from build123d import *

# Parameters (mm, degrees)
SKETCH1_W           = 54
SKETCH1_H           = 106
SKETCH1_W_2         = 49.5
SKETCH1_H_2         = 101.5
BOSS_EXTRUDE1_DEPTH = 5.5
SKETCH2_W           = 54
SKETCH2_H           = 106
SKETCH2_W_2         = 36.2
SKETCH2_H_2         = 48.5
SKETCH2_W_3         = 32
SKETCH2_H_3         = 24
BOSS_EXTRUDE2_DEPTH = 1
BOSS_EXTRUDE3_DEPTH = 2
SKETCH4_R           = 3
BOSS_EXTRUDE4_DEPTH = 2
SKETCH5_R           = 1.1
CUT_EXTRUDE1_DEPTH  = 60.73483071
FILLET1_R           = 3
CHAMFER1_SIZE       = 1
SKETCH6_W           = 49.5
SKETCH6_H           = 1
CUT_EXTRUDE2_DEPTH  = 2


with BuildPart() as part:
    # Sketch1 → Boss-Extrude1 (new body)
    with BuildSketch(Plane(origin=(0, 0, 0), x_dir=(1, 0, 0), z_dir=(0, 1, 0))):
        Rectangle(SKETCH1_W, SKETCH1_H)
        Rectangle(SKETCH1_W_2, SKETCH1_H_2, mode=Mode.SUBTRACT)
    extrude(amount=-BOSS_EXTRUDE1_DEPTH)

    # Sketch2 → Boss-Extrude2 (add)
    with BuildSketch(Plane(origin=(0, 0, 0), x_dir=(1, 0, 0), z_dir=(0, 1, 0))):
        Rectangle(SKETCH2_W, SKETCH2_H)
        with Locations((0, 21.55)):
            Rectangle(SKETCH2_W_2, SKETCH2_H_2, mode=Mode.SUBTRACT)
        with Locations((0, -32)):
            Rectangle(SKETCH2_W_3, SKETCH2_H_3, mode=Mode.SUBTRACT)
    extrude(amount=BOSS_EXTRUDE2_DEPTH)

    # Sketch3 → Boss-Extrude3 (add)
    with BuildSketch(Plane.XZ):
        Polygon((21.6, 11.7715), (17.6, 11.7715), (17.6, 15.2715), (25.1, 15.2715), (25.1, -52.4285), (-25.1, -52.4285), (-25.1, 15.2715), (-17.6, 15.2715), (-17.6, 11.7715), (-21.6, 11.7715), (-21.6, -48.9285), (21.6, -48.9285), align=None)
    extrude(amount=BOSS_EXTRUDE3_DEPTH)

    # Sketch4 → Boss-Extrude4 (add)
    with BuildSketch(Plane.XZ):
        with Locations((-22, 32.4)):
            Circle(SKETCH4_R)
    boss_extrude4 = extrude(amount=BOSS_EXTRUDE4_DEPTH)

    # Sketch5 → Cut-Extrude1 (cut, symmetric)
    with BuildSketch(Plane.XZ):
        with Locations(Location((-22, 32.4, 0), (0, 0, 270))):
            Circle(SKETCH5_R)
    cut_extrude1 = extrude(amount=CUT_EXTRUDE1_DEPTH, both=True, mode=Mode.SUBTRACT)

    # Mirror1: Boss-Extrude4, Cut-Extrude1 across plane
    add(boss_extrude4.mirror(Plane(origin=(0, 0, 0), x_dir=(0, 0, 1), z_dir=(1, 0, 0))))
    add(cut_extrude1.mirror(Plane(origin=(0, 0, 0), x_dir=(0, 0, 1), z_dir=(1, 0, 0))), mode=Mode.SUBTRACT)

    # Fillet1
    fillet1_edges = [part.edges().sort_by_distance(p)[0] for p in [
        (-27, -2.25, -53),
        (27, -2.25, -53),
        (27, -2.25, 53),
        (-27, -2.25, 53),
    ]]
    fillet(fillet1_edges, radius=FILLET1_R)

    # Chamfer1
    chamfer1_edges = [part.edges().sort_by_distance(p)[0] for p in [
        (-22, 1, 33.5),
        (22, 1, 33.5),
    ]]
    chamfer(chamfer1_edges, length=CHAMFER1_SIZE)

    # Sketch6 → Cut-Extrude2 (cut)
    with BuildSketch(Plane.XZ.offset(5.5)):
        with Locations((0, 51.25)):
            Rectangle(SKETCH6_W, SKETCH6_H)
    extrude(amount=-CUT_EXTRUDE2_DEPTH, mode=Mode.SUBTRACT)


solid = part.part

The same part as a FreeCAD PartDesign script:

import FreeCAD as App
import Part
import Sketcher
from FreeCAD import Vector
Q = App.Units.Quantity


def edges_at(feature, points):
    """Names of the edges that pass closest to the given points."""
    edges = feature.Shape.Edges
    near = lambda p: min(range(len(edges)), key=lambda i: edges[i].distToShape(Part.Vertex(*p))[0])
    return sorted({f"Edge{near(p) + 1}" for p in points})

doc = App.newDocument("Part")
params = doc.addObject("Spreadsheet::Sheet", "Params")
for row, (alias, value) in enumerate([
    ("sketch1_width", "54 mm"),
    ("sketch1_height", "106 mm"),
    ("sketch1_width2", "49.5 mm"),
    ("sketch1_height2", "101.5 mm"),
    ("pad1_length", "5.5 mm"),
    ("sketch2_width", "54 mm"),
    ("sketch2_width2", "32 mm"),
    ("sketch2_height", "106 mm"),
    ("sketch2_height2", "24 mm"),
    ("sketch2_width3", "36.2 mm"),
    ("pad2_length", "1 mm"),
    ("sketch3_width", "4 mm"),
    ("sketch3_width2", "43.2 mm"),
    ("sketch3_width3", "7.5 mm"),
    ("sketch3_height", "60.7 mm"),
    ("sketch3_height2", "3.5 mm"),
    ("pad3_length", "2 mm"),
    ("sketch4_diameter", "6 mm"),
    ("pad4_length", "2 mm"),
    ("sketch5_diameter", "2.2 mm"),
    ("pocket1_length", "121.469661 mm"),
    ("fillet_radius", "3 mm"),
    ("chamfer_size", "1 mm"),
    ("sketch6_height", "1 mm"),
    ("sketch6_width", "49.5 mm"),
    ("pocket2_length", "2 mm"),
], start=1):
    params.set(f"A{row}", alias)
    params.set(f"B{row}", "=" + value)
    params.setAlias(f"B{row}", alias)

body = doc.addObject("PartDesign::Body", "Body")

sketch1 = body.newObject("Sketcher::SketchObject", "Sketch")
sketch1.AttachmentSupport = (doc.getObject("XZ_Plane"), [""])
sketch1.MapMode = "FlatFace"
sketch1.addGeometry(Part.LineSegment(Vector(-27, -53, 0), Vector(-27, 53, 0)), False)
sketch1.addGeometry(Part.LineSegment(Vector(-27, 53, 0), Vector(27, 53, 0)), False)
sketch1.addGeometry(Part.LineSegment(Vector(27, 53, 0), Vector(27, -53, 0)), False)
sketch1.addGeometry(Part.LineSegment(Vector(27, -53, 0), Vector(-27, -53, 0)), False)
sketch1.addGeometry(Part.LineSegment(Vector(25, 51, 0), Vector(-25, 51, 0)), False)
sketch1.addGeometry(Part.LineSegment(Vector(-25, 51, 0), Vector(-25, -51, 0)), False)
sketch1.addGeometry(Part.LineSegment(Vector(-25, -51, 0), Vector(25, -51, 0)), False)
sketch1.addGeometry(Part.LineSegment(Vector(25, -51, 0), Vector(25, 51, 0)), False)
sketch1.addConstraint(Sketcher.Constraint("Coincident", 0, 2, 1, 1))
sketch1.addConstraint(Sketcher.Constraint("Coincident", 1, 2, 2, 1))
sketch1.addConstraint(Sketcher.Constraint("Coincident", 2, 2, 3, 1))
sketch1.addConstraint(Sketcher.Constraint("Coincident", 3, 2, 0, 1))
sketch1.addConstraint(Sketcher.Constraint("Coincident", 4, 2, 5, 1))
sketch1.addConstraint(Sketcher.Constraint("Coincident", 5, 2, 6, 1))
sketch1.addConstraint(Sketcher.Constraint("Coincident", 6, 2, 7, 1))
sketch1.addConstraint(Sketcher.Constraint("Coincident", 7, 2, 4, 1))
sketch1.addConstraint(Sketcher.Constraint("Vertical", 0))
sketch1.addConstraint(Sketcher.Constraint("Horizontal", 1))
sketch1.addConstraint(Sketcher.Constraint("Vertical", 2))
sketch1.addConstraint(Sketcher.Constraint("Horizontal", 3))
sketch1.addConstraint(Sketcher.Constraint("Horizontal", 4))
sketch1.addConstraint(Sketcher.Constraint("Vertical", 5))
sketch1.addConstraint(Sketcher.Constraint("Horizontal", 6))
sketch1.addConstraint(Sketcher.Constraint("Vertical", 7))
sketch1.addConstraint(Sketcher.Constraint("Symmetric", 0, 2, 2, 2, -1, 1))
sketch1.addConstraint(Sketcher.Constraint("Symmetric", 4, 2, 6, 2, -1, 1))
sketch1.addConstraint(Sketcher.Constraint("DistanceX", 1, 1, 1, 2, Q("54 mm")))
sketch1.addConstraint(Sketcher.Constraint("DistanceY", 0, 1, 0, 2, Q("106 mm")))
sketch1.addConstraint(Sketcher.Constraint("DistanceX", 4, 2, 4, 1, Q("49.5 mm")))
sketch1.addConstraint(Sketcher.Constraint("DistanceY", 5, 2, 5, 1, Q("101.5 mm")))
sketch1.setExpression("Constraints[18]", "Params.sketch1_width")
sketch1.setExpression("Constraints[19]", "Params.sketch1_height")
sketch1.setExpression("Constraints[20]", "Params.sketch1_width2")
sketch1.setExpression("Constraints[21]", "Params.sketch1_height2")
pad1 = body.newObject("PartDesign::Pad", "Pad")
pad1.Profile = sketch1
pad1.setExpression("Length", "Params.pad1_length")

sketch2 = body.newObject("Sketcher::SketchObject", "Sketch001")
sketch2.AttachmentSupport = (doc.getObject("XZ_Plane"), [""])
sketch2.MapMode = "FlatFace"
sketch2.addGeometry(Part.LineSegment(Vector(-27, -53, 0), Vector(-27, 53, 0)), False)
sketch2.addGeometry(Part.LineSegment(Vector(-27, 53, 0), Vector(27, 53, 0)), False)
sketch2.addGeometry(Part.LineSegment(Vector(27, 53, 0), Vector(27, -53, 0)), False)
sketch2.addGeometry(Part.LineSegment(Vector(27, -53, 0), Vector(-27, -53, 0)), False)
sketch2.addGeometry(Part.LineSegment(Vector(16, 44, 0), Vector(-16, 44, 0)), False)
sketch2.addGeometry(Part.LineSegment(Vector(-16, 44, 0), Vector(-16, 20, 0)), False)
sketch2.addGeometry(Part.LineSegment(Vector(-16, 20, 0), Vector(16, 20, 0)), False)
sketch2.addGeometry(Part.LineSegment(Vector(16, 20, 0), Vector(16, 44, 0)), False)
sketch2.addGeometry(Part.LineSegment(Vector(18, 3, 0), Vector(-18, 3, 0)), False)
sketch2.addGeometry(Part.LineSegment(Vector(-18, 3, 0), Vector(-18, -46, 0)), False)
sketch2.addGeometry(Part.LineSegment(Vector(-18, -46, 0), Vector(18, -46, 0)), False)
sketch2.addGeometry(Part.LineSegment(Vector(18, -46, 0), Vector(18, 3, 0)), False)
sketch2.addConstraint(Sketcher.Constraint("Coincident", 0, 2, 1, 1))
sketch2.addConstraint(Sketcher.Constraint("Coincident", 1, 2, 2, 1))
sketch2.addConstraint(Sketcher.Constraint("Coincident", 2, 2, 3, 1))
sketch2.addConstraint(Sketcher.Constraint("Coincident", 3, 2, 0, 1))
sketch2.addConstraint(Sketcher.Constraint("Coincident", 4, 2, 5, 1))
sketch2.addConstraint(Sketcher.Constraint("Coincident", 5, 2, 6, 1))
sketch2.addConstraint(Sketcher.Constraint("Coincident", 6, 2, 7, 1))
sketch2.addConstraint(Sketcher.Constraint("Coincident", 7, 2, 4, 1))
sketch2.addConstraint(Sketcher.Constraint("Coincident", 8, 2, 9, 1))
sketch2.addConstraint(Sketcher.Constraint("Coincident", 9, 2, 10, 1))
sketch2.addConstraint(Sketcher.Constraint("Coincident", 10, 2, 11, 1))
sketch2.addConstraint(Sketcher.Constraint("Coincident", 11, 2, 8, 1))
sketch2.addConstraint(Sketcher.Constraint("Vertical", 0))
sketch2.addConstraint(Sketcher.Constraint("Horizontal", 1))
sketch2.addConstraint(Sketcher.Constraint("Vertical", 2))
sketch2.addConstraint(Sketcher.Constraint("Horizontal", 3))
sketch2.addConstraint(Sketcher.Constraint("Horizontal", 4))
sketch2.addConstraint(Sketcher.Constraint("Vertical", 5))
sketch2.addConstraint(Sketcher.Constraint("Horizontal", 6))
sketch2.addConstraint(Sketcher.Constraint("Vertical", 7))
sketch2.addConstraint(Sketcher.Constraint("Horizontal", 8))
sketch2.addConstraint(Sketcher.Constraint("Vertical", 9))
sketch2.addConstraint(Sketcher.Constraint("Horizontal", 10))
sketch2.addConstraint(Sketcher.Constraint("Vertical", 11))
sketch2.addConstraint(Sketcher.Constraint("Symmetric", 0, 2, 2, 2, -1, 1))
sketch2.addConstraint(Sketcher.Constraint("DistanceX", 1, 1, 1, 2, Q("54 mm")))
sketch2.addConstraint(Sketcher.Constraint("DistanceX", 4, 2, 4, 1, Q("32 mm")))
sketch2.addConstraint(Sketcher.Constraint("DistanceY", 0, 1, 0, 2, Q("106 mm")))
sketch2.addConstraint(Sketcher.Constraint("DistanceY", 5, 2, 5, 1, Q("24 mm")))
sketch2.addConstraint(Sketcher.Constraint("DistanceX", 8, 2, 8, 1, Q("36.2 mm")))
sketch2.addConstraint(Sketcher.Constraint("DistanceY", 9, 2, 9, 1, Q("48.5 mm")))
sketch2.addConstraint(Sketcher.Constraint("DistanceX", 4, 2, -1, 1, Q("16 mm")))
sketch2.addConstraint(Sketcher.Constraint("DistanceY", -1, 1, 4, 2, Q("44 mm")))
sketch2.addConstraint(Sketcher.Constraint("DistanceX", 8, 2, -1, 1, Q("18.1 mm")))
sketch2.addConstraint(Sketcher.Constraint("DistanceY", -1, 1, 8, 2, Q("2.7 mm")))
sketch2.setExpression("Constraints[25]", "Params.sketch2_width")
sketch2.setExpression("Constraints[26]", "Params.sketch2_width2")
sketch2.setExpression("Constraints[27]", "Params.sketch2_height")
sketch2.setExpression("Constraints[28]", "Params.sketch2_height2")
sketch2.setExpression("Constraints[29]", "Params.sketch2_width3")
pad2 = body.newObject("PartDesign::Pad", "Pad001")
pad2.Profile = sketch2
pad2.setExpression("Length", "Params.pad2_length")
pad2.Reversed = True

sketch3 = body.newObject("Sketcher::SketchObject", "Sketch002")
sketch3.AttachmentSupport = (doc.getObject("XZ_Plane"), [""])
sketch3.MapMode = "FlatFace"
sketch3.addGeometry(Part.LineSegment(Vector(17.6, 11.8, 0), Vector(21.6, 11.8, 0)), False)
sketch3.addGeometry(Part.LineSegment(Vector(21.6, 11.8, 0), Vector(21.6, -48.9, 0)), False)
sketch3.addGeometry(Part.LineSegment(Vector(21.6, -48.9, 0), Vector(-21.6, -48.9, 0)), False)
sketch3.addGeometry(Part.LineSegment(Vector(-21.6, -48.9, 0), Vector(-21.6, 11.8, 0)), False)
sketch3.addGeometry(Part.LineSegment(Vector(-21.6, 11.8, 0), Vector(-17.6, 11.8, 0)), False)
sketch3.addGeometry(Part.LineSegment(Vector(-17.6, 11.8, 0), Vector(-17.6, 15.3, 0)), False)
sketch3.addGeometry(Part.LineSegment(Vector(-17.6, 15.3, 0), Vector(-25.1, 15.3, 0)), False)
sketch3.addGeometry(Part.LineSegment(Vector(-25.1, 15.3, 0), Vector(-25.1, -52.4, 0)), False)
sketch3.addGeometry(Part.LineSegment(Vector(-25.1, -52.4, 0), Vector(25.1, -52.4, 0)), False)
sketch3.addGeometry(Part.LineSegment(Vector(25.1, -52.4, 0), Vector(25.1, 15.3, 0)), False)
sketch3.addGeometry(Part.LineSegment(Vector(25.1, 15.3, 0), Vector(17.6, 15.3, 0)), False)
sketch3.addGeometry(Part.LineSegment(Vector(17.6, 15.3, 0), Vector(17.6, 11.8, 0)), False)
sketch3.addConstraint(Sketcher.Constraint("Coincident", 0, 2, 1, 1))
sketch3.addConstraint(Sketcher.Constraint("Coincident", 1, 2, 2, 1))
sketch3.addConstraint(Sketcher.Constraint("Coincident", 2, 2, 3, 1))
sketch3.addConstraint(Sketcher.Constraint("Coincident", 3, 2, 4, 1))
sketch3.addConstraint(Sketcher.Constraint("Coincident", 4, 2, 5, 1))
sketch3.addConstraint(Sketcher.Constraint("Coincident", 5, 2, 6, 1))
sketch3.addConstraint(Sketcher.Constraint("Coincident", 6, 2, 7, 1))
sketch3.addConstraint(Sketcher.Constraint("Coincident", 7, 2, 8, 1))
sketch3.addConstraint(Sketcher.Constraint("Coincident", 8, 2, 9, 1))
sketch3.addConstraint(Sketcher.Constraint("Coincident", 9, 2, 10, 1))
sketch3.addConstraint(Sketcher.Constraint("Coincident", 10, 2, 11, 1))
sketch3.addConstraint(Sketcher.Constraint("Coincident", 11, 2, 0, 1))
sketch3.addConstraint(Sketcher.Constraint("Horizontal", 0))
sketch3.addConstraint(Sketcher.Constraint("Vertical", 1))
sketch3.addConstraint(Sketcher.Constraint("Horizontal", 2))
sketch3.addConstraint(Sketcher.Constraint("Vertical", 3))
sketch3.addConstraint(Sketcher.Constraint("Horizontal", 4))
sketch3.addConstraint(Sketcher.Constraint("Vertical", 5))
sketch3.addConstraint(Sketcher.Constraint("Horizontal", 6))
sketch3.addConstraint(Sketcher.Constraint("Vertical", 7))
sketch3.addConstraint(Sketcher.Constraint("Horizontal", 8))
sketch3.addConstraint(Sketcher.Constraint("Vertical", 9))
sketch3.addConstraint(Sketcher.Constraint("Horizontal", 10))
sketch3.addConstraint(Sketcher.Constraint("Vertical", 11))
sketch3.addConstraint(Sketcher.Constraint("Symmetric", 0, 2, 3, 2, -2))
sketch3.addConstraint(Sketcher.Constraint("Symmetric", 6, 2, 9, 2, -2))
sketch3.addConstraint(Sketcher.Constraint("Equal", 0, 4))
sketch3.addConstraint(Sketcher.Constraint("DistanceX", 0, 1, 0, 2, Q("4 mm")))
sketch3.addConstraint(Sketcher.Constraint("DistanceX", 2, 2, 2, 1, Q("43.2 mm")))
sketch3.addConstraint(Sketcher.Constraint("DistanceX", 6, 2, 6, 1, Q("7.5 mm")))
sketch3.addConstraint(Sketcher.Constraint("DistanceY", 1, 2, 1, 1, Q("60.7 mm")))
sketch3.addConstraint(Sketcher.Constraint("DistanceY", 5, 1, 5, 2, Q("3.5 mm")))
sketch3.addConstraint(Sketcher.Constraint("DistanceY", 7, 2, 7, 1, Q("67.7 mm")))
sketch3.addConstraint(Sketcher.Constraint("DistanceY", -1, 1, 0, 2, Q("11.7715 mm")))
sketch3.setExpression("Constraints[27]", "Params.sketch3_width")
sketch3.setExpression("Constraints[28]", "Params.sketch3_width2")
sketch3.setExpression("Constraints[29]", "Params.sketch3_width3")
sketch3.setExpression("Constraints[30]", "Params.sketch3_height")
sketch3.setExpression("Constraints[31]", "Params.sketch3_height2")
pad3 = body.newObject("PartDesign::Pad", "Pad002")
pad3.Profile = sketch3
pad3.setExpression("Length", "Params.pad3_length")

sketch4 = body.newObject("Sketcher::SketchObject", "Sketch003")
sketch4.AttachmentSupport = (doc.getObject("XZ_Plane"), [""])
sketch4.MapMode = "FlatFace"
sketch4.addGeometry(Part.Circle(Vector(-22, 32.4, 0), Vector(0, 0, 1), 3), False)
sketch4.addConstraint(Sketcher.Constraint("Diameter", 0, Q("6 mm")))
sketch4.addConstraint(Sketcher.Constraint("DistanceX", 0, 3, -1, 1, Q("22 mm")))
sketch4.addConstraint(Sketcher.Constraint("DistanceY", -1, 1, 0, 3, Q("32.4 mm")))
sketch4.setExpression("Constraints[0]", "Params.sketch4_diameter")
pad4 = body.newObject("PartDesign::Pad", "Pad003")
pad4.Profile = sketch4
pad4.setExpression("Length", "Params.pad4_length")

sketch5 = body.newObject("Sketcher::SketchObject", "Sketch004")
sketch5.AttachmentSupport = (doc.getObject("XZ_Plane"), [""])
sketch5.MapMode = "FlatFace"
sketch5.addGeometry(Part.Circle(Vector(-22, 32.4, 0), Vector(0, 0, 1), 1.1), False)
sketch5.addConstraint(Sketcher.Constraint("Diameter", 0, Q("2.2 mm")))
sketch5.addConstraint(Sketcher.Constraint("DistanceX", 0, 3, -1, 1, Q("22 mm")))
sketch5.addConstraint(Sketcher.Constraint("DistanceY", -1, 1, 0, 3, Q("32.4 mm")))
sketch5.setExpression("Constraints[0]", "Params.sketch5_diameter")
pocket1 = body.newObject("PartDesign::Pocket", "Pocket")
pocket1.Profile = sketch5
pocket1.setExpression("Length", "Params.pocket1_length")
pocket1.Midplane = True
doc.recompute()

mirrored = body.newObject("PartDesign::Mirrored", "Mirrored")
mirrored.Originals = [pad4, pocket1]
mirrored.MirrorPlane = (doc.getObject("YZ_Plane"), [""])
body.Tip = mirrored
doc.recompute()

fillet = body.newObject("PartDesign::Fillet", "Fillet")
fillet.Base = (mirrored, edges_at(mirrored, [
    (-27, -2.25, -53),
    (27, -2.25, -53),
    (27, -2.25, 53),
    (-27, -2.25, 53),
]))
fillet.setExpression("Radius", "Params.fillet_radius")
doc.recompute()

chamfer = body.newObject("PartDesign::Chamfer", "Chamfer")
chamfer.Base = (fillet, edges_at(fillet, [(-22, 1, 33.5), (22, 1, 33.5)]))
chamfer.setExpression("Size", "Params.chamfer_size")

sketch6 = body.newObject("Sketcher::SketchObject", "Sketch005")
sketch6.AttachmentSupport = (doc.getObject("XZ_Plane"), [""])
sketch6.MapMode = "FlatFace"
sketch6.AttachmentOffset = App.Placement(Vector(0, 0, 5.5), App.Rotation())
sketch6.addGeometry(Part.LineSegment(Vector(-24.8, 51.8, 0), Vector(-24.8, 50.8, 0)), False)
sketch6.addGeometry(Part.LineSegment(Vector(-24.8, 50.8, 0), Vector(24.8, 50.8, 0)), False)
sketch6.addGeometry(Part.LineSegment(Vector(24.8, 50.8, 0), Vector(24.8, 51.8, 0)), False)
sketch6.addGeometry(Part.LineSegment(Vector(24.8, 51.8, 0), Vector(-24.8, 51.8, 0)), False)
sketch6.addConstraint(Sketcher.Constraint("Coincident", 0, 2, 1, 1))
sketch6.addConstraint(Sketcher.Constraint("Coincident", 1, 2, 2, 1))
sketch6.addConstraint(Sketcher.Constraint("Coincident", 2, 2, 3, 1))
sketch6.addConstraint(Sketcher.Constraint("Coincident", 3, 2, 0, 1))
sketch6.addConstraint(Sketcher.Constraint("Vertical", 0))
sketch6.addConstraint(Sketcher.Constraint("Horizontal", 1))
sketch6.addConstraint(Sketcher.Constraint("Vertical", 2))
sketch6.addConstraint(Sketcher.Constraint("Horizontal", 3))
sketch6.addConstraint(Sketcher.Constraint("DistanceY", 0, 2, 0, 1, Q("1 mm")))
sketch6.addConstraint(Sketcher.Constraint("DistanceX", 1, 1, 1, 2, Q("49.5 mm")))
sketch6.addConstraint(Sketcher.Constraint("DistanceX", 0, 2, -1, 1, Q("24.75 mm")))
sketch6.addConstraint(Sketcher.Constraint("DistanceY", -1, 1, 0, 2, Q("50.75 mm")))
sketch6.setExpression("Constraints[8]", "Params.sketch6_height")
sketch6.setExpression("Constraints[9]", "Params.sketch6_width")
pocket2 = body.newObject("PartDesign::Pocket", "Pocket001")
pocket2.Profile = sketch6
pocket2.setExpression("Length", "Params.pocket2_length")

doc.recompute()
